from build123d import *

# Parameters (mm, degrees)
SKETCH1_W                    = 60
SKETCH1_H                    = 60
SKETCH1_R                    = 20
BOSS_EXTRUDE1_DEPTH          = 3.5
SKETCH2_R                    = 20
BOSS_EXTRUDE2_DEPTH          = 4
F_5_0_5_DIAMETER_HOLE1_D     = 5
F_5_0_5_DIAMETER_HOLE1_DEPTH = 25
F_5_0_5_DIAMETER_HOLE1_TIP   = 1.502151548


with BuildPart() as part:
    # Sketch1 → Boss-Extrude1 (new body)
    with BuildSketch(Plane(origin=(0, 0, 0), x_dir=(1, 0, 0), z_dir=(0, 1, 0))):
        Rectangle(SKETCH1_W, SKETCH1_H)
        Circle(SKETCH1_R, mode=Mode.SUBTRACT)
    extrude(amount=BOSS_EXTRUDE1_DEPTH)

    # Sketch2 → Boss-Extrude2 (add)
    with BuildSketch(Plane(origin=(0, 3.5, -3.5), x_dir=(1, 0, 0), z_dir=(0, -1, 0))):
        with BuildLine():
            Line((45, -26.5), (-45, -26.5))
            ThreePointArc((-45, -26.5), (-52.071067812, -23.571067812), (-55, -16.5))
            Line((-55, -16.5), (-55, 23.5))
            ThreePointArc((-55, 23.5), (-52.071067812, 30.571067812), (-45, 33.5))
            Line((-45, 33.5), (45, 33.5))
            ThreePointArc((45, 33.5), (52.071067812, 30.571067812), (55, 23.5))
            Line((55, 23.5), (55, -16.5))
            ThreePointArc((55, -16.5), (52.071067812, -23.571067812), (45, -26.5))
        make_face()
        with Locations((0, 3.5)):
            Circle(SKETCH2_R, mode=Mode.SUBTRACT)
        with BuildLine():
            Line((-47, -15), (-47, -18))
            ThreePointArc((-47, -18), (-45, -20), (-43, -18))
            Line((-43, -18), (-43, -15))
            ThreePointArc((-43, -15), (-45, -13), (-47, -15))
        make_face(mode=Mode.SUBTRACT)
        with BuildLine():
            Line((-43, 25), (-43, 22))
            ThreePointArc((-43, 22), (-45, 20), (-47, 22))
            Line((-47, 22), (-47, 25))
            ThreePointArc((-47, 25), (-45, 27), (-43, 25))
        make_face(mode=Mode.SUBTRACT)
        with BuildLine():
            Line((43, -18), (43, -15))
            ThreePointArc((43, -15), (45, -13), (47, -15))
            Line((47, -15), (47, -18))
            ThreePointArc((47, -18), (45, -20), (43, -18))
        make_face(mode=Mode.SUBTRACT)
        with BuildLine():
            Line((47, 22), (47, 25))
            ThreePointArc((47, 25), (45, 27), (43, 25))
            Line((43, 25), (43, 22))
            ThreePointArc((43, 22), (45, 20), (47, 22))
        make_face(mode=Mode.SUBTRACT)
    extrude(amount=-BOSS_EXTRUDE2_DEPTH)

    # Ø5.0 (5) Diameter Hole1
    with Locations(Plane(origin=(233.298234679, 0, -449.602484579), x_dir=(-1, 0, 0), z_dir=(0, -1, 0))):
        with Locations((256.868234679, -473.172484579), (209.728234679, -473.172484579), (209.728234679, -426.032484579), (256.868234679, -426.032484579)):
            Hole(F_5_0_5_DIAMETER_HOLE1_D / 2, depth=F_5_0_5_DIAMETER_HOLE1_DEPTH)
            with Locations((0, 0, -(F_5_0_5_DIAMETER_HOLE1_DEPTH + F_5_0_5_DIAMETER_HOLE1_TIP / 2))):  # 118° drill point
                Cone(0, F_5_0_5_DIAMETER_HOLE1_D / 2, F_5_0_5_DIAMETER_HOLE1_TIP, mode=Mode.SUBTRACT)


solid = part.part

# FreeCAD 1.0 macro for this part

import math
import FreeCAD as App
import Part
import Sketcher
Q = App.Units.Quantity


def add_polygon(sketch, points):
    """Adds a closed chain of lines whose ends are joined by coincident constraints."""
    first, n = sketch.GeometryCount, len(points)
    for a, b in zip(points, points[1:] + points[:1]):
        sketch.addGeometry(Part.LineSegment(App.Vector(*a, 0), App.Vector(*b, 0)), False)
    for i in range(n):
        sketch.addConstraint(Sketcher.Constraint("Coincident", first + i, 2, first + (i + 1) % n, 1))

doc = App.newDocument("Part")
body = doc.addObject("PartDesign::Body", "Body")

# Sketch on XZ plane
sketch1 = body.newObject("Sketcher::SketchObject", "Sketch")
sketch1.AttachmentSupport = (doc.getObject("XZ_Plane"), [""])
sketch1.MapMode = "FlatFace"
add_polygon(sketch1, [(-30, -30), (-30, 30), (30, 30), (30, -30)])  # lines 0-3
sketch1.addGeometry(Part.Circle(App.Vector(0, 0, 0), App.Vector(0, 0, 1), 20), False)  # 4
sketch1.addConstraint([
    Sketcher.Constraint("Vertical", 0),
    Sketcher.Constraint("Horizontal", 1),
    Sketcher.Constraint("Vertical", 2),
    Sketcher.Constraint("Horizontal", 3),
    Sketcher.Constraint("Coincident", 4, 3, -1, 1),
    Sketcher.Constraint("Symmetric", 0, 2, 2, 2, -1, 1),
    Sketcher.Constraint("Equal", 3, 0),
    Sketcher.Constraint("Diameter", 4, Q("40 mm")),
    Sketcher.Constraint("DistanceX", 1, 1, 1, 2, Q("60 mm")),
])
pad1 = body.newObject("PartDesign::Pad", "Pad")
pad1.Profile = sketch1
pad1.Length = 3.5
pad1.Reversed = True

# Sketch on XZ plane
sketch2 = body.newObject("Sketcher::SketchObject", "Sketch001")
sketch2.AttachmentSupport = (doc.getObject("XZ_Plane"), [""])
sketch2.MapMode = "FlatFace"
sketch2.AttachmentOffset = App.Placement(App.Vector(0, 0, -3.5), App.Rotation())
sketch2.addGeometry([
    Part.LineSegment(App.Vector(-45, -30, 0), App.Vector(45, -30, 0)),  # 0
    Part.ArcOfCircle(Part.Circle(App.Vector(45, -20, 0), App.Vector(0, 0, 1), 10), math.radians(-90), math.radians(0)),  # 1
    Part.LineSegment(App.Vector(55, -20, 0), App.Vector(55, 20, 0)),  # 2
    Part.ArcOfCircle(Part.Circle(App.Vector(45, 20, 0), App.Vector(0, 0, 1), 10), math.radians(0), math.radians(90)),  # 3
    Part.LineSegment(App.Vector(45, 30, 0), App.Vector(-45, 30, 0)),  # 4
    Part.ArcOfCircle(Part.Circle(App.Vector(-45, 20, 0), App.Vector(0, 0, 1), 10), math.radians(90), math.radians(180)),  # 5
    Part.LineSegment(App.Vector(-55, 20, 0), App.Vector(-55, -20, 0)),  # 6
    Part.ArcOfCircle(Part.Circle(App.Vector(-45, -20, 0), App.Vector(0, 0, 1), 10), math.radians(180), math.radians(270)),  # 7
    Part.LineSegment(App.Vector(43, -21.5, 0), App.Vector(43, -18.5, 0)),  # 8
    Part.ArcOfCircle(Part.Circle(App.Vector(45, -18.5, 0), App.Vector(0, 0, 1), 2), math.radians(0), math.radians(180)),  # 9
    Part.LineSegment(App.Vector(47, -18.5, 0), App.Vector(47, -21.5, 0)),  # 10
    Part.ArcOfCircle(Part.Circle(App.Vector(45, -21.5, 0), App.Vector(0, 0, 1), 2), math.radians(180), math.radians(360)),  # 11
    Part.ArcOfCircle(Part.Circle(App.Vector(-45, -18.5, 0), App.Vector(0, 0, 1), 2), math.radians(0), math.radians(180)),  # 12
    Part.LineSegment(App.Vector(-43, -18.5, 0), App.Vector(-43, -21.5, 0)),  # 13
    Part.ArcOfCircle(Part.Circle(App.Vector(-45, -21.5, 0), App.Vector(0, 0, 1), 2), math.radians(180), math.radians(360)),  # 14
    Part.LineSegment(App.Vector(-47, -21.5, 0), App.Vector(-47, -18.5, 0)),  # 15
    Part.ArcOfCircle(Part.Circle(App.Vector(45, 18.5, 0), App.Vector(0, 0, 1), 2), math.radians(180), math.radians(360)),  # 16
    Part.LineSegment(App.Vector(43, 18.5, 0), App.Vector(43, 21.5, 0)),  # 17
    Part.ArcOfCircle(Part.Circle(App.Vector(45, 21.5, 0), App.Vector(0, 0, 1), 2), math.radians(0), math.radians(180)),  # 18
    Part.LineSegment(App.Vector(47, 21.5, 0), App.Vector(47, 18.5, 0)),  # 19
    Part.Circle(App.Vector(0, 0, 0), App.Vector(0, 0, 1), 20),  # 20
    Part.LineSegment(App.Vector(-43, 21.5, 0), App.Vector(-43, 18.5, 0)),  # 21
    Part.ArcOfCircle(Part.Circle(App.Vector(-45, 18.5, 0), App.Vector(0, 0, 1), 2), math.radians(180), math.radians(360)),  # 22
    Part.LineSegment(App.Vector(-47, 18.5, 0), App.Vector(-47, 21.5, 0)),  # 23
    Part.ArcOfCircle(Part.Circle(App.Vector(-45, 21.5, 0), App.Vector(0, 0, 1), 2), math.radians(0), math.radians(180)),  # 24
], False)
sketch2.addConstraint([
    Sketcher.Constraint("Tangent", 0, 2, 1, 1),
    Sketcher.Constraint("Tangent", 1, 2, 2, 1),
    Sketcher.Constraint("Tangent", 2, 2, 3, 1),
    Sketcher.Constraint("Tangent", 3, 2, 4, 1),
    Sketcher.Constraint("Tangent", 4, 2, 5, 1),
    Sketcher.Constraint("Tangent", 5, 2, 6, 1),
    Sketcher.Constraint("Tangent", 6, 2, 7, 1),
    Sketcher.Constraint("Tangent", 7, 2, 0, 1),
    Sketcher.Constraint("Tangent", 8, 2, 9, 2),
    Sketcher.Constraint("Tangent", 9, 1, 10, 1),
    Sketcher.Constraint("Tangent", 10, 2, 11, 2),
    Sketcher.Constraint("Tangent", 11, 1, 8, 1),
    Sketcher.Constraint("Tangent", 12, 1, 13, 1),
    Sketcher.Constraint("Tangent", 13, 2, 14, 2),
    Sketcher.Constraint("Tangent", 14, 1, 15, 1),
    Sketcher.Constraint("Tangent", 15, 2, 12, 2),
    Sketcher.Constraint("Tangent", 16, 1, 17, 1),
    Sketcher.Constraint("Tangent", 17, 2, 18, 2),
    Sketcher.Constraint("Tangent", 18, 1, 19, 1),
    Sketcher.Constraint("Tangent", 19, 2, 16, 2),
    Sketcher.Constraint("Tangent", 21, 2, 22, 2),
    Sketcher.Constraint("Tangent", 22, 1, 23, 1),
    Sketcher.Constraint("Tangent", 23, 2, 24, 2),
    Sketcher.Constraint("Tangent", 24, 1, 21, 1),
    Sketcher.Constraint("Horizontal", 0),
    Sketcher.Constraint("Vertical", 2),
    Sketcher.Constraint("Horizontal", 4),
    Sketcher.Constraint("Vertical", 6),
    Sketcher.Constraint("Vertical", 8),
    Sketcher.Constraint("Vertical", 10),
    Sketcher.Constraint("Vertical", 13),
    Sketcher.Constraint("Vertical", 15),
    Sketcher.Constraint("Vertical", 17),
    Sketcher.Constraint("Vertical", 19),
    Sketcher.Constraint("Vertical", 21),
    Sketcher.Constraint("Vertical", 23),
    Sketcher.Constraint("Coincident", 20, 3, -1, 1),
    Sketcher.Constraint("Equal", 1, 3),
    Sketcher.Constraint("Equal", 3, 5),
    Sketcher.Constraint("Equal", 5, 7),
    Sketcher.Constraint("Equal", 11, 12),
    Sketcher.Constraint("Equal", 14, 16),
    Sketcher.Constraint("Equal", 18, 22),
    Sketcher.Constraint("Symmetric", 1, 3, 5, 3, -1, 1),
    Sketcher.Constraint("Symmetric", 12, 3, 16, 3, -1, 1),
    Sketcher.Constraint("Symmetric", 9, 3, 22, 3, -1, 1),
    Sketcher.Constraint("Symmetric", 9, 3, 12, 3, -2),
    Sketcher.Constraint("Horizontal", 11, 3, 14, 3),
    Sketcher.Constraint("Horizontal", 18, 3, 24, 3),
    Sketcher.Constraint("Vertical", 3, 3, 9, 3),
    Sketcher.Constraint("Equal", 15, 17),
    Sketcher.Constraint("Diameter", 20, Q("40 mm")),
    Sketcher.Constraint("Radius", 1, Q("10 mm")),
    Sketcher.Constraint("Radius", 9, Q("2 mm")),
    Sketcher.Constraint("DistanceX", 0, 1, 0, 2, Q("90 mm")),
    Sketcher.Constraint("DistanceY", 2, 1, 2, 2, Q("40 mm")),
    Sketcher.Constraint("DistanceY", 8, 1, 8, 2, Q("3 mm")),
    Sketcher.Constraint("DistanceY", 9, 3, 16, 3, Q("37 mm")),
])
pad2 = body.newObject("PartDesign::Pad", "Pad001")
pad2.Profile = sketch2
pad2.Length = 4
pad2.Reversed = True

# Sketch on XZ plane
sketch3 = body.newObject("Sketcher::SketchObject", "Sketch002")
sketch3.AttachmentSupport = (doc.getObject("XZ_Plane"), [""])
sketch3.MapMode = "FlatFace"
sketch3.addGeometry([
    Part.Circle(App.Vector(-23.6, 23.6, 0), App.Vector(0, 0, 1), 2.5),
    Part.Circle(App.Vector(23.6, 23.6, 0), App.Vector(0, 0, 1), 2.5),
    Part.Circle(App.Vector(23.6, -23.6, 0), App.Vector(0, 0, 1), 2.5),
    Part.Circle(App.Vector(-23.6, -23.6, 0), App.Vector(0, 0, 1), 2.5),
], False)
sketch3.addConstraint([
    Sketcher.Constraint("Equal", 0, 1),
    Sketcher.Constraint("Equal", 1, 2),
    Sketcher.Constraint("Equal", 2, 3),
    Sketcher.Constraint("Symmetric", 0, 3, 2, 3, -1, 1),
    Sketcher.Constraint("Symmetric", 1, 3, 3, 3, -1, 1),
    Sketcher.Constraint("Symmetric", 0, 3, 1, 3, -2),
    Sketcher.Constraint("Diameter", 0, Q("5 mm")),
    Sketcher.Constraint("DistanceX", 0, 3, -1, 1, Q("23.57 mm")),
    Sketcher.Constraint("DistanceY", -1, 1, 0, 3, Q("23.57 mm")),
])
doc.recompute()
hole = body.newObject("PartDesign::Hole", "Hole")
hole.Profile = sketch3
hole.ThreadType = "None"
hole.Diameter = 5
hole.DepthType = "Dimension"
hole.Depth = 25
hole.DrillPoint = "Angled"
hole.DrillPointAngle = 118

doc.recompute()
